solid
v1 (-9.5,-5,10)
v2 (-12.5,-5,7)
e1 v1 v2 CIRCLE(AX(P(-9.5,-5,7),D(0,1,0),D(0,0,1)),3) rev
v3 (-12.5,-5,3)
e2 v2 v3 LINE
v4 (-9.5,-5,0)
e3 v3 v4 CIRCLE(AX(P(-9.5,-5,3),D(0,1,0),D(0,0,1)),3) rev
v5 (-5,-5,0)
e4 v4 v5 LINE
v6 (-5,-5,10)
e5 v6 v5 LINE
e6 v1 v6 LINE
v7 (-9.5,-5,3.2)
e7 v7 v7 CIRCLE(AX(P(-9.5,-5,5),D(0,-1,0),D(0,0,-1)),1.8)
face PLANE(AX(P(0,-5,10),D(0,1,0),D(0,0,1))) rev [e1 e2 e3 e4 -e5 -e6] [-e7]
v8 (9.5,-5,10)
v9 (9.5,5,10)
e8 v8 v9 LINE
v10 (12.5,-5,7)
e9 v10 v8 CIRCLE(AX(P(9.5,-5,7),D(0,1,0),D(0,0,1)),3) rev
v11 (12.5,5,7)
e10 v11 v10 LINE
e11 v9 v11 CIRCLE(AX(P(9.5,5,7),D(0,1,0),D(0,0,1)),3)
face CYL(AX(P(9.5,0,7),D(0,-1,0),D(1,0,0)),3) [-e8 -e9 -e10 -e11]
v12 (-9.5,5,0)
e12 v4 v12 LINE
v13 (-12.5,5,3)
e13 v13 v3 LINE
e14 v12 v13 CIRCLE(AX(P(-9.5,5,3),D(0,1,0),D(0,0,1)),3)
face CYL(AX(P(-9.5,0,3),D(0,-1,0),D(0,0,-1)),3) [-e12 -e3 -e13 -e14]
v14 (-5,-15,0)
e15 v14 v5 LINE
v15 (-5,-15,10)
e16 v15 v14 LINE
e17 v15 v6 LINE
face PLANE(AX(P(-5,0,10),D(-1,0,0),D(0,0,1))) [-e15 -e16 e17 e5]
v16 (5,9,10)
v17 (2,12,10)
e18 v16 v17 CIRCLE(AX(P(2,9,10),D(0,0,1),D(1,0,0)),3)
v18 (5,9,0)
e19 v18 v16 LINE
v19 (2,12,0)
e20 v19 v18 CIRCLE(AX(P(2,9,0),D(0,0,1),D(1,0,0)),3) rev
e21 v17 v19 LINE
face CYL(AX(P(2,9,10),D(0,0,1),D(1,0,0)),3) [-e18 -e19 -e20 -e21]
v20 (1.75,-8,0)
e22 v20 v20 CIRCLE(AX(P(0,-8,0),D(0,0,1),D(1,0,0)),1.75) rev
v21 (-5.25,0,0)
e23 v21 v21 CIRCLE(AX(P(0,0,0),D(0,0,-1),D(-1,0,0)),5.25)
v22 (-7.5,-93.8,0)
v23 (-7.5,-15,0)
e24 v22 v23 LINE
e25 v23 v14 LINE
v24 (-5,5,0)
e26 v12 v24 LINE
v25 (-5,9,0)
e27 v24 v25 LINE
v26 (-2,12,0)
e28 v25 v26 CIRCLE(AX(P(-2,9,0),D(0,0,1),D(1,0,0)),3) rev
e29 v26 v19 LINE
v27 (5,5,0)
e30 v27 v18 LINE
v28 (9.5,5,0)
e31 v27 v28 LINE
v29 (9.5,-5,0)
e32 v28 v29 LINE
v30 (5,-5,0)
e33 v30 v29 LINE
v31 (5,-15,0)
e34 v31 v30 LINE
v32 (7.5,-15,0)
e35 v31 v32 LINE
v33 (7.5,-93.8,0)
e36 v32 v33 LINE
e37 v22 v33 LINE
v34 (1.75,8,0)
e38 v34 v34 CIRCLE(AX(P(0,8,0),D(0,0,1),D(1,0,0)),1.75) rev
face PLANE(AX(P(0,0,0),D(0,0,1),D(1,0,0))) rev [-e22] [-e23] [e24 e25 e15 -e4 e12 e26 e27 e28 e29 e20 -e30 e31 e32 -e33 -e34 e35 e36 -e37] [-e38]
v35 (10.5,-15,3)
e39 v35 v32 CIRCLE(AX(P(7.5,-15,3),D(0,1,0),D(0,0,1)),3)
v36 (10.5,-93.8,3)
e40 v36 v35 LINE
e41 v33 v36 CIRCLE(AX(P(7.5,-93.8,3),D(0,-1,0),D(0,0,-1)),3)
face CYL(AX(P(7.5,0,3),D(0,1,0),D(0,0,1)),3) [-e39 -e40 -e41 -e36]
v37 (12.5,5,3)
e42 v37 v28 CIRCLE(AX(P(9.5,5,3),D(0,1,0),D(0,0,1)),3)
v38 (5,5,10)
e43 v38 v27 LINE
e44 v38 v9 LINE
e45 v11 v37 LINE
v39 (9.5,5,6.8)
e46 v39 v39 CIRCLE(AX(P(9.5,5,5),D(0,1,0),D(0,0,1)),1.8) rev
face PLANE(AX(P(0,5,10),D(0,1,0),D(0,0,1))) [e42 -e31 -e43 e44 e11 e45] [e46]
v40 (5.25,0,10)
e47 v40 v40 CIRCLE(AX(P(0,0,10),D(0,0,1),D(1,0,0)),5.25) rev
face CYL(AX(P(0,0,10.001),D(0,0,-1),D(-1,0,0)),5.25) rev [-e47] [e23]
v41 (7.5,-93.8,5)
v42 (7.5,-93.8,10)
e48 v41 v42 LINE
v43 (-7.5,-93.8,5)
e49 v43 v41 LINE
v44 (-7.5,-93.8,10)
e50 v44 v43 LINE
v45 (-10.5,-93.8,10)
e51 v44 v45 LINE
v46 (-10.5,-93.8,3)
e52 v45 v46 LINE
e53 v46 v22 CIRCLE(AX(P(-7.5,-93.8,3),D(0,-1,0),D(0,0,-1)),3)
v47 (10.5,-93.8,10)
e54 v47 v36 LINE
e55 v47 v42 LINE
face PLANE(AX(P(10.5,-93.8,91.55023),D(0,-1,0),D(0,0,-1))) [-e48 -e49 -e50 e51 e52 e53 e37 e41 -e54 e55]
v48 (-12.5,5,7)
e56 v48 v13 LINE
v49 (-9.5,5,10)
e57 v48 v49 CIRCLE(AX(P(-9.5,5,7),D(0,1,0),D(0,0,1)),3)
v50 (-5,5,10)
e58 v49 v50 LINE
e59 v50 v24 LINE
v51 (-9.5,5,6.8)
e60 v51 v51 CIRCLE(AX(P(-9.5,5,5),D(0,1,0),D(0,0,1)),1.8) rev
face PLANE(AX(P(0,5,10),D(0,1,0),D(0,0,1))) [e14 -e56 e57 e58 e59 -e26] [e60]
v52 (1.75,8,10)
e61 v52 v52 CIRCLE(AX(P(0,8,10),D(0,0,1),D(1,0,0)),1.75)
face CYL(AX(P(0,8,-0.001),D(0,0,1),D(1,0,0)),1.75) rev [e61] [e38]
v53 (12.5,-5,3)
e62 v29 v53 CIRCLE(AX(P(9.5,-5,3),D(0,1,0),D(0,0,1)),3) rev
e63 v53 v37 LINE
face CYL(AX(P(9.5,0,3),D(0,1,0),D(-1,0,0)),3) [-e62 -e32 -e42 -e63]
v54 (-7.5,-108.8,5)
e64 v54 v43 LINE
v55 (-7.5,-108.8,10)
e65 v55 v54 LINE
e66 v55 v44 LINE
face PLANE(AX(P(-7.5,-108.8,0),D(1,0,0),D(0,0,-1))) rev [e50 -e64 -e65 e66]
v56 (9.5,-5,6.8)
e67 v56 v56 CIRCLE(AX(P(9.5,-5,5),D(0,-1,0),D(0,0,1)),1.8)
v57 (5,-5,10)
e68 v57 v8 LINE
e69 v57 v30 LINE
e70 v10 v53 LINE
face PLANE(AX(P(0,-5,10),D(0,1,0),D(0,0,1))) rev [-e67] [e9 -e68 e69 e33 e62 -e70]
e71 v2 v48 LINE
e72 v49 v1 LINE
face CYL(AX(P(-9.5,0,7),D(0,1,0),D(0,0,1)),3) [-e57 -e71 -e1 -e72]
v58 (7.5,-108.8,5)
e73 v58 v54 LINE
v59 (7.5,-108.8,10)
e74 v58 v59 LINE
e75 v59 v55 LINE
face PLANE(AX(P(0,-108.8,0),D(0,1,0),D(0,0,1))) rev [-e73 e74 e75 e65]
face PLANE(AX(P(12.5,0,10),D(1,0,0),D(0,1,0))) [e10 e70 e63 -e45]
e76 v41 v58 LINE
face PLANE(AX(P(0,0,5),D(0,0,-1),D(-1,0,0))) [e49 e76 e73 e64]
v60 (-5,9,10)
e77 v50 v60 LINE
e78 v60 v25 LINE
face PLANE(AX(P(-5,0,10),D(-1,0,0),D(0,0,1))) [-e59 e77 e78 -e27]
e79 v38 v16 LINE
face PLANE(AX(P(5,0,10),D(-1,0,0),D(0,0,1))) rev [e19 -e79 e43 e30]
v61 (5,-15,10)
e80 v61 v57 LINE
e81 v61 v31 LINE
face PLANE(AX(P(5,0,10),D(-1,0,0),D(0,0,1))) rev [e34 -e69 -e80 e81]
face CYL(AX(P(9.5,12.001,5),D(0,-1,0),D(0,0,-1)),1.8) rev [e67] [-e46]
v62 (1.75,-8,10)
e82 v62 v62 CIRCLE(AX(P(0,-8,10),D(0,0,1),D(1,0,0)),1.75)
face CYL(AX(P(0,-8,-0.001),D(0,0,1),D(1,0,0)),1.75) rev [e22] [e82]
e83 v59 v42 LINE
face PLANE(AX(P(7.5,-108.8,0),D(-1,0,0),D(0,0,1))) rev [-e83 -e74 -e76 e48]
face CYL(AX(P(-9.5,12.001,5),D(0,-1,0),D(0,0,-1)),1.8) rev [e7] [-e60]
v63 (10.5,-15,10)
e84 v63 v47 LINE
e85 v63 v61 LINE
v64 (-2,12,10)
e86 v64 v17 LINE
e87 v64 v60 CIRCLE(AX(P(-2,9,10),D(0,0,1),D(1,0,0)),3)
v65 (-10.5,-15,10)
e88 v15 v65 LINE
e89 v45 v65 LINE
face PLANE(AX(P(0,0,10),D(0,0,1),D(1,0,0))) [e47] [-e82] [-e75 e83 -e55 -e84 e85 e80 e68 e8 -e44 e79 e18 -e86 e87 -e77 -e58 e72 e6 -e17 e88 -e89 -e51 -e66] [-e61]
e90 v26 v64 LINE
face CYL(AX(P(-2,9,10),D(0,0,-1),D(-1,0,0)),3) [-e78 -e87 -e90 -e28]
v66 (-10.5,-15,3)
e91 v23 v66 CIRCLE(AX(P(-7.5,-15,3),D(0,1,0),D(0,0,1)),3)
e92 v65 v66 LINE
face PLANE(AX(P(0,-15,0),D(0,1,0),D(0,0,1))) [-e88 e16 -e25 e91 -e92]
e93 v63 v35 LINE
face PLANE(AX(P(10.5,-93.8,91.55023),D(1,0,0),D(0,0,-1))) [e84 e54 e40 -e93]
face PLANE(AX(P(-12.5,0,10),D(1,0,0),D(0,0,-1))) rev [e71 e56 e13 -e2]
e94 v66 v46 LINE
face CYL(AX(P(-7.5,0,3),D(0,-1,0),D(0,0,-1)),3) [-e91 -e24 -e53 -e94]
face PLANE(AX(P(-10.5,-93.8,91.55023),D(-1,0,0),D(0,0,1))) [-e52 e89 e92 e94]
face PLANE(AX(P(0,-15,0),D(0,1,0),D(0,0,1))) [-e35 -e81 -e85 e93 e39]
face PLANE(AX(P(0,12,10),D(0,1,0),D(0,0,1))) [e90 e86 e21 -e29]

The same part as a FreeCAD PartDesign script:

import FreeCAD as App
import Part
import Sketcher

V = App.Vector


def edges_at(feature, points):
    """Names of the edges that pass closest to the given points."""
    edges = feature.Shape.Edges
    near = lambda p: min(range(len(edges)), key=lambda i: edges[i].distToShape(Part.Vertex(*p))[0])
    return sorted({f"Edge{near(p) + 1}" for p in points})

doc = App.newDocument("Part")
params = doc.addObject("Spreadsheet::Sheet", "Params")
for row, (alias, value) in enumerate([
    ("sketch1_width", "10 mm"),
    ("sketch1_height", "7 mm"),
    ("sketch1_width2", "7.5 mm"),
    ("pad1_length", "10 mm"),
    ("sketch2_diameter", "3.6 mm"),
    ("sketch3_diameter", "3.6 mm"),
    ("sketch4_diameter", "10.5 mm"),
    ("fillet_radius", "3 mm"),
    ("sketch5_diameter", "3.5 mm"),
    ("sketch6_diameter", "3.5 mm"),
    ("sketch7_width", "15 mm"),
    ("sketch7_height", "10 mm"),
    ("pad2_length", "93.8 mm"),
    ("sketch8_width", "21 mm"),
    ("sketch8_height", "78.8 mm"),
    ("pad3_length", "10 mm"),
    ("fillet2_radius", "3 mm"),
    ("sketch9_width", "15 mm"),
    ("pocket6_length", "5 mm"),
    ("fillet3_radius", "3 mm"),
], start=1):
    params.set(f"A{row}", alias)
    params.set(f"B{row}", "=" + value)
    params.setAlias(f"B{row}", alias)

body = doc.addObject("PartDesign::Body", "Body")

sketch1 = body.newObject("Sketcher::SketchObject", "Sketch")
sketch1.AttachmentSupport = (doc.getObject("XY_Plane"), [""])
sketch1.MapMode = "FlatFace"
sketch1.addGeometry(Part.LineSegment(V(-12, 5, 0), V(-12, -5, 0)), False)
sketch1.addGeometry(Part.LineSegment(V(-12, -5, 0), V(-5, -5, 0)), False)
sketch1.addGeometry(Part.LineSegment(V(-5, -5, 0), V(-5, -15, 0)), False)
sketch1.addGeometry(Part.LineSegment(V(-5, -15, 0), V(5, -15, 0)), False)
sketch1.addGeometry(Part.LineSegment(V(5, -15, 0), V(5, -5, 0)), False)
sketch1.addGeometry(Part.LineSegment(V(5, -5, 0), V(12, -5, 0)), False)
sketch1.addGeometry(Part.LineSegment(V(12, -5, 0), V(12, 5, 0)), False)
sketch1.addGeometry(Part.LineSegment(V(12, 5, 0), V(5, 5, 0)), False)
sketch1.addGeometry(Part.LineSegment(V(5, 5, 0), V(5, 12, 0)), False)
sketch1.addGeometry(Part.LineSegment(V(5, 12, 0), V(-5, 12, 0)), False)
sketch1.addGeometry(Part.LineSegment(V(-5, 12, 0), V(-5, 5, 0)), False)
sketch1.addGeometry(Part.LineSegment(V(-5, 5, 0), V(-12, 5, 0)), False)
sketch1.addConstraint(Sketcher.Constraint("Coincident", 0, 2, 1, 1))
sketch1.addConstraint(Sketcher.Constraint("Coincident", 1, 2, 2, 1))
sketch1.addConstraint(Sketcher.Constraint("Coincident", 2, 2, 3, 1))
sketch1.addConstraint(Sketcher.Constraint("Coincident", 3, 2, 4, 1))
sketch1.addConstraint(Sketcher.Constraint("Coincident", 4, 2, 5, 1))
sketch1.addConstraint(Sketcher.Constraint("Coincident", 5, 2, 6, 1))
sketch1.addConstraint(Sketcher.Constraint("Coincident", 6, 2, 7, 1))
sketch1.addConstraint(Sketcher.Constraint("Coincident", 7, 2, 8, 1))
sketch1.addConstraint(Sketcher.Constraint("Coincident", 8, 2, 9, 1))
sketch1.addConstraint(Sketcher.Constraint("Coincident", 9, 2, 10, 1))
sketch1.addConstraint(Sketcher.Constraint("Coincident", 10, 2, 11, 1))
sketch1.addConstraint(Sketcher.Constraint("Coincident", 11, 2, 0, 1))
sketch1.addConstraint(Sketcher.Constraint("Vertical", 0))
sketch1.addConstraint(Sketcher.Constraint("Horizontal", 1))
sketch1.addConstraint(Sketcher.Constraint("Vertical", 2))
sketch1.addConstraint(Sketcher.Constraint("Horizontal", 3))
sketch1.addConstraint(Sketcher.Constraint("Vertical", 4))
sketch1.addConstraint(Sketcher.Constraint("Horizontal", 5))
sketch1.addConstraint(Sketcher.Constraint("Vertical", 6))
sketch1.addConstraint(Sketcher.Constraint("Horizontal", 7))
sketch1.addConstraint(Sketcher.Constraint("Vertical", 8))
sketch1.addConstraint(Sketcher.Constraint("Horizontal", 9))
sketch1.addConstraint(Sketcher.Constraint("Vertical", 10))
sketch1.addConstraint(Sketcher.Constraint("Horizontal", 11))
sketch1.addConstraint(Sketcher.Constraint("Symmetric", 0, 2, 6, 2, -1, 1))
sketch1.addConstraint(Sketcher.Constraint("Symmetric", 4, 2, 10, 2, -1, 1))
sketch1.addConstraint(Sketcher.Constraint("Symmetric", 1, 2, 4, 2, -2))
sketch1.addConstraint(Sketcher.Constraint("Vertical", 4, 2, 7, 2))
sketch1.addConstraint(Sketcher.Constraint("Equal", 9, 0))
sketch1.addConstraint(Sketcher.Constraint("Equal", 0, 2))
sketch1.addConstraint(Sketcher.Constraint("DistanceX", 3, 1, 3, 2, 10.0))
sketch1.addConstraint(Sketcher.Constraint("DistanceY", 8, 1, 8, 2, 7.0))
sketch1.addConstraint(Sketcher.Constraint("DistanceX", 1, 1, 1, 2, 7.5))
sketch1.setExpression("Constraints[30]", "Params.sketch1_width")
sketch1.setExpression("Constraints[31]", "Params.sketch1_height")
sketch1.setExpression("Constraints[32]", "Params.sketch1_width2")
pad1 = body.newObject("PartDesign::Pad", "Pad")
pad1.Profile = sketch1
pad1.setExpression("Length", "Params.pad1_length")

sketch2 = body.newObject("Sketcher::SketchObject", "Sketch001")
sketch2.AttachmentSupport = (doc.getObject("XZ_Plane"), [""])
sketch2.MapMode = "FlatFace"
sketch2.AttachmentOffset = App.Placement(V(0, 0, 5), App.Rotation())
sketch2.addGeometry(Part.Circle(V(-9.5, 5, 0), V(0, 0, 1), 1.8), False)
sketch2.addConstraint(Sketcher.Constraint("Diameter", 0, 3.6))
sketch2.addConstraint(Sketcher.Constraint("DistanceY", -1, 1, 0, 3, 5.0))
sketch2.addConstraint(Sketcher.Constraint("DistanceX", 0, 3, -1, 1, 9.5))
sketch2.setExpression("Constraints[0]", "Params.sketch2_diameter")
pocket1 = body.newObject("PartDesign::Pocket", "Pocket")
pocket1.Profile = sketch2
pocket1.Type = "UpToFirst"

sketch3 = body.newObject("Sketcher::SketchObject", "Sketch002")
sketch3.AttachmentSupport = (doc.getObject("XZ_Plane"), [""])
sketch3.MapMode = "FlatFace"
sketch3.AttachmentOffset = App.Placement(V(0, 0, 5), App.Rotation())
sketch3.addGeometry(Part.Circle(V(9.5, 5, 0), V(0, 0, 1), 1.8), False)
sketch3.addConstraint(Sketcher.Constraint("Diameter", 0, 3.6))
sketch3.addConstraint(Sketcher.Constraint("DistanceY", -1, 1, 0, 3, 5.0))
sketch3.addConstraint(Sketcher.Constraint("DistanceX", -1, 1, 0, 3, 9.5))
sketch3.setExpression("Constraints[0]", "Params.sketch3_diameter")
pocket2 = body.newObject("PartDesign::Pocket", "Pocket001")
pocket2.Profile = sketch3
pocket2.Type = "UpToFirst"

sketch4 = body.newObject("Sketcher::SketchObject", "Sketch003")
sketch4.AttachmentSupport = (doc.getObject("XY_Plane"), [""])
sketch4.MapMode = "FlatFace"
sketch4.addGeometry(Part.Circle(V(0, 0, 0), V(0, 0, 1), 5), False)
sketch4.addConstraint(Sketcher.Constraint("Coincident", 0, 3, -1, 1))
sketch4.addConstraint(Sketcher.Constraint("Diameter", 0, 10.5))
sketch4.setExpression("Constraints[1]", "Params.sketch4_diameter")
pocket3 = body.newObject("PartDesign::Pocket", "Pocket002")
pocket3.Profile = sketch4
pocket3.Type = "UpToFirst"
pocket3.Reversed = True
doc.recompute()

fillet = body.newObject("PartDesign::Fillet", "Fillet")
fillet.Base = (pocket3, edges_at(pocket3, [
    (12.5, 0, 0),
    (-12.5, 0, 0),
    (12.5, 0, 10),
    (-12.5, 0, 10),
]))
fillet.setExpression("Radius", "Params.fillet_radius")

sketch5 = body.newObject("Sketcher::SketchObject", "Sketch004")
sketch5.AttachmentSupport = (doc.getObject("XY_Plane"), [""])
sketch5.MapMode = "FlatFace"
sketch5.AttachmentOffset = App.Placement(V(0, 0, 10), App.Rotation())
sketch5.addGeometry(Part.Circle(V(0, 8, 0), V(0, 0, 1), 1.8), False)
sketch5.addConstraint(Sketcher.Constraint("PointOnObject", 0, 3, -2))
sketch5.addConstraint(Sketcher.Constraint("Diameter", 0, 3.5))
sketch5.addConstraint(Sketcher.Constraint("DistanceY", -1, 1, 0, 3, 8.0))
sketch5.setExpression("Constraints[1]", "Params.sketch5_diameter")
pocket4 = body.newObject("PartDesign::Pocket", "Pocket003")
pocket4.Profile = sketch5
pocket4.Type = "UpToFirst"

sketch6 = body.newObject("Sketcher::SketchObject", "Sketch005")
sketch6.AttachmentSupport = (doc.getObject("XY_Plane"), [""])
sketch6.MapMode = "FlatFace"
sketch6.AttachmentOffset = App.Placement(V(0, 0, 10), App.Rotation())
sketch6.addGeometry(Part.Circle(V(0, -8, 0), V(0, 0, 1), 1.8), False)
sketch6.addConstraint(Sketcher.Constraint("PointOnObject", 0, 3, -2))
sketch6.addConstraint(Sketcher.Constraint("Diameter", 0, 3.5))
sketch6.addConstraint(Sketcher.Constraint("DistanceY", 0, 3, -1, 1, 8.0))
sketch6.setExpression("Constraints[1]", "Params.sketch6_diameter")
pocket5 = body.newObject("PartDesign::Pocket", "Pocket004")
pocket5.Profile = sketch6
pocket5.Type = "UpToFirst"

sketch7 = body.newObject("Sketcher::SketchObject", "Sketch006")
sketch7.AttachmentSupport = (doc.getObject("XZ_Plane"), [""])
sketch7.MapMode = "FlatFace"
sketch7.AttachmentOffset = App.Placement(V(0, 0, 15), App.Rotation())
sketch7.addGeometry(Part.LineSegment(V(-8, 10, 0), V(-8, 0, 0)), False)
sketch7.addGeometry(Part.LineSegment(V(-8, 0, 0), V(8, 0, 0)), False)
sketch7.addGeometry(Part.LineSegment(V(8, 0, 0), V(8, 10, 0)), False)
sketch7.addGeometry(Part.LineSegment(V(8, 10, 0), V(-8, 10, 0)), False)
sketch7.addConstraint(Sketcher.Constraint("Coincident", 0, 2, 1, 1))
sketch7.addConstraint(Sketcher.Constraint("Coincident", 1, 2, 2, 1))
sketch7.addConstraint(Sketcher.Constraint("Coincident", 2, 2, 3, 1))
sketch7.addConstraint(Sketcher.Constraint("Coincident", 3, 2, 0, 1))
sketch7.addConstraint(Sketcher.Constraint("Vertical", 0))
sketch7.addConstraint(Sketcher.Constraint("Horizontal", 1))
sketch7.addConstraint(Sketcher.Constraint("Vertical", 2))
sketch7.addConstraint(Sketcher.Constraint("Horizontal", 3))
sketch7.addConstraint(Sketcher.Constraint("Symmetric", 0, 2, 1, 2, -1, 1))
sketch7.addConstraint(Sketcher.Constraint("DistanceX", 1, 1, 1, 2, 15.0))
sketch7.addConstraint(Sketcher.Constraint("DistanceY", 0, 2, 0, 1, 10.0))
sketch7.setExpression("Constraints[9]", "Params.sketch7_width")
sketch7.setExpression("Constraints[10]", "Params.sketch7_height")
pad2 = body.newObject("PartDesign::Pad", "Pad001")
pad2.Profile = sketch7
pad2.setExpression("Length", "Params.pad2_length")

sketch8 = body.newObject("Sketcher::SketchObject", "Sketch007")
sketch8.AttachmentSupport = (doc.getObject("XY_Plane"), [""])
sketch8.MapMode = "FlatFace"
sketch8.addGeometry(Part.LineSegment(V(10, -15, 0), V(10, -94, 0)), False)
sketch8.addGeometry(Part.LineSegment(V(10, -94, 0), V(-10, -94, 0)), False)
sketch8.addGeometry(Part.LineSegment(V(-10, -94, 0), V(-10, -15, 0)), False)
sketch8.addGeometry(Part.LineSegment(V(-10, -15, 0), V(10, -15, 0)), False)
sketch8.addConstraint(Sketcher.Constraint("Coincident", 0, 2, 1, 1))
sketch8.addConstraint(Sketcher.Constraint("Coincident", 1, 2, 2, 1))
sketch8.addConstraint(Sketcher.Constraint("Coincident", 2, 2, 3, 1))
sketch8.addConstraint(Sketcher.Constraint("Coincident", 3, 2, 0, 1))
sketch8.addConstraint(Sketcher.Constraint("Vertical", 0))
sketch8.addConstraint(Sketcher.Constraint("Horizontal", 1))
sketch8.addConstraint(Sketcher.Constraint("Vertical", 2))
sketch8.addConstraint(Sketcher.Constraint("Horizontal", 3))
sketch8.addConstraint(Sketcher.Constraint("DistanceX", 1, 2, 1, 1, 21.0))
sketch8.addConstraint(Sketcher.Constraint("DistanceY", 0, 2, 0, 1, 78.8))
sketch8.addConstraint(Sketcher.Constraint("DistanceY", 2, 2, -1, 1, 15.0))
sketch8.addConstraint(Sketcher.Constraint("DistanceX", -1, 1, 0, 2, 10.5))
sketch8.setExpression("Constraints[8]", "Params.sketch8_width")
sketch8.setExpression("Constraints[9]", "Params.sketch8_height")
pad3 = body.newObject("PartDesign::Pad", "Pad002")
pad3.Profile = sketch8
pad3.setExpression("Length", "Params.pad3_length")
doc.recompute()

fillet2 = body.newObject("PartDesign::Fillet", "Fillet001")
fillet2.Base = (pad3, edges_at(pad3, [(-10.5, -54.4, 0), (10.5, -54.4, 0)]))
fillet2.setExpression("Radius", "Params.fillet2_radius")

sketch9 = body.newObject("Sketcher::SketchObject", "Sketch008")
sketch9.AttachmentSupport = (doc.getObject("XY_Plane"), [""])
sketch9.MapMode = "FlatFace"
sketch9.addGeometry(Part.LineSegment(V(8, -94, 0), V(8, -109, 0)), False)
sketch9.addGeometry(Part.LineSegment(V(8, -109, 0), V(-8, -109, 0)), False)
sketch9.addGeometry(Part.LineSegment(V(-8, -109, 0), V(-8, -94, 0)), False)
sketch9.addGeometry(Part.LineSegment(V(-8, -94, 0), V(8, -94, 0)), False)
sketch9.addConstraint(Sketcher.Constraint("Coincident", 0, 2, 1, 1))
sketch9.addConstraint(Sketcher.Constraint("Coincident", 1, 2, 2, 1))
sketch9.addConstraint(Sketcher.Constraint("Coincident", 2, 2, 3, 1))
sketch9.addConstraint(Sketcher.Constraint("Coincident", 3, 2, 0, 1))
sketch9.addConstraint(Sketcher.Constraint("Vertical", 0))
sketch9.addConstraint(Sketcher.Constraint("Horizontal", 1))
sketch9.addConstraint(Sketcher.Constraint("Vertical", 2))
sketch9.addConstraint(Sketcher.Constraint("Horizontal", 3))
sketch9.addConstraint(Sketcher.Constraint("Equal", 3, 0))
sketch9.addConstraint(Sketcher.Constraint("DistanceX", 1, 2, 1, 1, 15.0))
sketch9.addConstraint(Sketcher.Constraint("DistanceX", -1, 1, 0, 2, 7.5))
sketch9.addConstraint(Sketcher.Constraint("DistanceY", 0, 2, -1, 1, 108.8))
sketch9.setExpression("Constraints[9]", "Params.sketch9_width")
pocket6 = body.newObject("PartDesign::Pocket", "Pocket005")
pocket6.Profile = sketch9
pocket6.setExpression("Length", "Params.pocket6_length")
pocket6.Reversed = True
doc.recompute()

fillet3 = body.newObject("PartDesign::Fillet", "Fillet002")
fillet3.Base = (pocket6, edges_at(pocket6, [(-5, 12, 5), (5, 12, 5)]))
fillet3.setExpression("Radius", "Params.fillet3_radius")

doc.recompute()
